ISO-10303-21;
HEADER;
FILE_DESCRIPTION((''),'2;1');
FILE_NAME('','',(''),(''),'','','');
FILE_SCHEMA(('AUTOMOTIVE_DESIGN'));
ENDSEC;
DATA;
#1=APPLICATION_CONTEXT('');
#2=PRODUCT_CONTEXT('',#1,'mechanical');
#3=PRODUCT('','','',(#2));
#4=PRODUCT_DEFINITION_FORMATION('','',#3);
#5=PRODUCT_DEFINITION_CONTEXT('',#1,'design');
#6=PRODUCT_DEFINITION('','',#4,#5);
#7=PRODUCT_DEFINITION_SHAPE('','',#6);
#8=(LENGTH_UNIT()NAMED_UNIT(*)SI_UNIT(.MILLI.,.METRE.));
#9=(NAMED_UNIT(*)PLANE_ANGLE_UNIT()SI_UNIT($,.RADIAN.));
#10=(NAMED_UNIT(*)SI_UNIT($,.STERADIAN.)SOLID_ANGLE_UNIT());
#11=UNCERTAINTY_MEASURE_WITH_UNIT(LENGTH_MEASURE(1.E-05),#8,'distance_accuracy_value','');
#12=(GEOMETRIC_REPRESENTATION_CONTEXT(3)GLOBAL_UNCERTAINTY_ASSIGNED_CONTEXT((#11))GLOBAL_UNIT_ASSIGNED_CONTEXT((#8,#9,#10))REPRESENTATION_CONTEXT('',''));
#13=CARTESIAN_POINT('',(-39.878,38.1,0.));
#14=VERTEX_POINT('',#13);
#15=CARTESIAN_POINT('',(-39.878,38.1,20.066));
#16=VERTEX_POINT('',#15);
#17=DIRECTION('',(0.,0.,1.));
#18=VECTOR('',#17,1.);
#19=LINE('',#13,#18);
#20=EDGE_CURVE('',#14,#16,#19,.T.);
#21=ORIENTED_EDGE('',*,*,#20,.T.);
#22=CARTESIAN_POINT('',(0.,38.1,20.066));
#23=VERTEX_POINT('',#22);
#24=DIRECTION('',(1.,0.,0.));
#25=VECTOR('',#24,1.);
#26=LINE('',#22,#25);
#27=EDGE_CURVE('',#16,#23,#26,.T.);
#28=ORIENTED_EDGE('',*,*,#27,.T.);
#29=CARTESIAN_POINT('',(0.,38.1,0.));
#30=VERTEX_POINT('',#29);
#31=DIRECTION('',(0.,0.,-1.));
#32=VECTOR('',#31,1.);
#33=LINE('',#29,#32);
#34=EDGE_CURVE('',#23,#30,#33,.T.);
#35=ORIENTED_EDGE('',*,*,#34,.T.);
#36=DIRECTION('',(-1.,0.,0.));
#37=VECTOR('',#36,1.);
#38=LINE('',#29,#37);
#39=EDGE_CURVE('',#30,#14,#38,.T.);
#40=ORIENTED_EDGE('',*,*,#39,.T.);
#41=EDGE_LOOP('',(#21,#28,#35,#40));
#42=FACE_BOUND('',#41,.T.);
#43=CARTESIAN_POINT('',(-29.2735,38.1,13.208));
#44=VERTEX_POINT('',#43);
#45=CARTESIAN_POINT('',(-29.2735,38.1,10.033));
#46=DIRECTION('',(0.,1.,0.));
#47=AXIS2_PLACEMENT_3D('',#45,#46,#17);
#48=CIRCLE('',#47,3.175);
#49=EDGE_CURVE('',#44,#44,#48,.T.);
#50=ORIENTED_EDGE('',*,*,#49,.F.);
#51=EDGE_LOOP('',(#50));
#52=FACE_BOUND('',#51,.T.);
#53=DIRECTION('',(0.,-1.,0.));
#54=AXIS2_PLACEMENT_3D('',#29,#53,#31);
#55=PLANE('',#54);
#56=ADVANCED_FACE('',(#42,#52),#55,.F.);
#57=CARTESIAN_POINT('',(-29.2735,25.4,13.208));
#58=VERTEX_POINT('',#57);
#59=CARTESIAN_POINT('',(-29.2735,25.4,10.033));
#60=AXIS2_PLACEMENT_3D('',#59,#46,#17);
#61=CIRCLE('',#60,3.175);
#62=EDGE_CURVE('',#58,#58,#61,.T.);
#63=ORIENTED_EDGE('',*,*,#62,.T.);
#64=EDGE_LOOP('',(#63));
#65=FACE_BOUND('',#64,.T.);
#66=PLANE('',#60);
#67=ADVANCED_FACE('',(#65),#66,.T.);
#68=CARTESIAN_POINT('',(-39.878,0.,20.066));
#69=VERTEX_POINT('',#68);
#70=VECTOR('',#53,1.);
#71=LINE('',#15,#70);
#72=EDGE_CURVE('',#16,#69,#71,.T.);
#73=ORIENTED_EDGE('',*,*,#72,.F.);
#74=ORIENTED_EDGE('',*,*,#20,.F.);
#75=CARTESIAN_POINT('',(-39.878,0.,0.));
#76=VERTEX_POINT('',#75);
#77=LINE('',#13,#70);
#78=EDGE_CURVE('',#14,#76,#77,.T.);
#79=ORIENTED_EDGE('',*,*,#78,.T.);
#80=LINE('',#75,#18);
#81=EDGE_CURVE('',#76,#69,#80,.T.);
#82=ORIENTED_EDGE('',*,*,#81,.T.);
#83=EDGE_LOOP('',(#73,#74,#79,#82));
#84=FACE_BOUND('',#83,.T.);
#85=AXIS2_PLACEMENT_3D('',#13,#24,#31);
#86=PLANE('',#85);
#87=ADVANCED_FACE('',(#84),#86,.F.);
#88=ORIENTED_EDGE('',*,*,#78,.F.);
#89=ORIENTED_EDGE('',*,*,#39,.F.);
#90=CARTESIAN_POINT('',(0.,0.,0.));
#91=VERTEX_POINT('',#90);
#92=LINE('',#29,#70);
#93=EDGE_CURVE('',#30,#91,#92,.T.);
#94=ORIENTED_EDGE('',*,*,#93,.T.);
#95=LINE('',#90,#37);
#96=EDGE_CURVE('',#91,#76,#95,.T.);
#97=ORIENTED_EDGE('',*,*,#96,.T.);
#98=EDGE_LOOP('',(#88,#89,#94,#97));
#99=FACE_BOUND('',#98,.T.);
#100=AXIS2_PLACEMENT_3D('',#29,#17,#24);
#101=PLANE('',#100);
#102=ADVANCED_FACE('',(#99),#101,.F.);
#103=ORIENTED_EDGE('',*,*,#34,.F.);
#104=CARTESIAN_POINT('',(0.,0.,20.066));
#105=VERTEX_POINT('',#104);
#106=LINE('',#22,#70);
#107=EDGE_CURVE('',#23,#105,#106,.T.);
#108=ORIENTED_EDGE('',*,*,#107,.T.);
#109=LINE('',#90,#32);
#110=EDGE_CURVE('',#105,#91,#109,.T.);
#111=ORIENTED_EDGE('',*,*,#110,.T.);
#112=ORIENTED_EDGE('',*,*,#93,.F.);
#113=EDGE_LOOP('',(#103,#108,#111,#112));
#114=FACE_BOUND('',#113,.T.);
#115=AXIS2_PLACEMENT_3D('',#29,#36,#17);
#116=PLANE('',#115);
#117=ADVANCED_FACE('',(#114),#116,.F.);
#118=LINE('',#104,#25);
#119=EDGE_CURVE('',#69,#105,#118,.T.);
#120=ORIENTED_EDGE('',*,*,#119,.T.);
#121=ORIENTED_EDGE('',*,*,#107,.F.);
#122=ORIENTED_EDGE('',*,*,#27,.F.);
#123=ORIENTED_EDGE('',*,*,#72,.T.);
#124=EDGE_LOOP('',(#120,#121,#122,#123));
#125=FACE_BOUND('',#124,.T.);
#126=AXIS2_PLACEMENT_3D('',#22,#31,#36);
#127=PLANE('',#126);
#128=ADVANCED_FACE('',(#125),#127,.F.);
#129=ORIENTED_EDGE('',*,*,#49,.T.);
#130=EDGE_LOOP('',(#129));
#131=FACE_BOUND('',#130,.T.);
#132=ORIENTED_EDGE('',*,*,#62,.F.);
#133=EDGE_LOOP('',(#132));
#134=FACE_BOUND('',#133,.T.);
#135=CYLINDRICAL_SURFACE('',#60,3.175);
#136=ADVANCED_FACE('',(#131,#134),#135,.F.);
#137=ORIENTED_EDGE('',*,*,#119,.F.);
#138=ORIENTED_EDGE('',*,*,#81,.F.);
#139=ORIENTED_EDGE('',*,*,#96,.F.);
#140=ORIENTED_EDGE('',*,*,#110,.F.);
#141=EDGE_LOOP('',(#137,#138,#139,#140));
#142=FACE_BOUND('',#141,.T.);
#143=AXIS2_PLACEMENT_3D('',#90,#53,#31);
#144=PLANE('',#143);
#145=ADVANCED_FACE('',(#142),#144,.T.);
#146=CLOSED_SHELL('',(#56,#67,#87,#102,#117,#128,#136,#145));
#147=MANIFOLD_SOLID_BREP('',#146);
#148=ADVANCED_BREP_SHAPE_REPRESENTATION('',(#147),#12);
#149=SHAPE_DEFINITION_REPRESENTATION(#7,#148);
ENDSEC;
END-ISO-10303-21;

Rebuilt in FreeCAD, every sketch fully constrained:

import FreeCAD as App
import Part
import Sketcher
from FreeCAD import Vector
Q = App.Units.Quantity

doc = App.newDocument("Part")
params = doc.addObject("Spreadsheet::Sheet", "Params")
for row, (alias, value) in enumerate([
    ("sketch1_width", "1.57 in"),
    ("sketch1_height", "0.79 in"),
    ("pad1_length", "1.5 in"),
    ("sketch2_diameter", "0.25 in"),
    ("pocket1_length", "0.5 in"),
], start=1):
    params.set(f"A{row}", alias)
    params.set(f"B{row}", "=" + value)
    params.setAlias(f"B{row}", alias)

body = doc.addObject("PartDesign::Body", "Body")

# Sketch on XZ plane
sketch1 = body.newObject("Sketcher::SketchObject", "Sketch")
sketch1.AttachmentSupport = (doc.getObject("XZ_Plane"), [""])
sketch1.MapMode = "FlatFace"
sketch1.addGeometry(Part.LineSegment(Vector(-39.878, 0, 0), Vector(-39.878, 20.066, 0)), False)
sketch1.addGeometry(Part.LineSegment(Vector(-39.878, 20.066, 0), Vector(0, 20.066, 0)), False)
sketch1.addGeometry(Part.LineSegment(Vector(0, 20.066, 0), Vector(0, 0, 0)), False)
sketch1.addGeometry(Part.LineSegment(Vector(0, 0, 0), Vector(-39.878, 0, 0)), False)
sketch1.addConstraint(Sketcher.Constraint("Coincident", 0, 2, 1, 1))
sketch1.addConstraint(Sketcher.Constraint("Coincident", 1, 2, 2, 1))
sketch1.addConstraint(Sketcher.Constraint("Coincident", 2, 2, 3, 1))
sketch1.addConstraint(Sketcher.Constraint("Coincident", 3, 2, 0, 1))
sketch1.addConstraint(Sketcher.Constraint("Vertical", 0))
sketch1.addConstraint(Sketcher.Constraint("Horizontal", 1))
sketch1.addConstraint(Sketcher.Constraint("Vertical", 2))
sketch1.addConstraint(Sketcher.Constraint("Horizontal", 3))
sketch1.addConstraint(Sketcher.Constraint("Coincident", 2, 2, -1, 1))
sketch1.addConstraint(Sketcher.Constraint("DistanceX", 1, 1, 1, 2, Q("1.57 in")))
sketch1.addConstraint(Sketcher.Constraint("DistanceY", 0, 1, 0, 2, Q("0.79 in")))
sketch1.setExpression("Constraints[9]", "Params.sketch1_width")
sketch1.setExpression("Constraints[10]", "Params.sketch1_height")
pad1 = body.newObject("PartDesign::Pad", "Pad")
pad1.Profile = sketch1
pad1.setExpression("Length", "Params.pad1_length")
pad1.Reversed = True

# Sketch on XZ plane
sketch2 = body.newObject("Sketcher::SketchObject", "Sketch001")
sketch2.AttachmentSupport = (doc.getObject("XZ_Plane"), [""])
sketch2.MapMode = "FlatFace"
sketch2.AttachmentOffset = App.Placement(Vector(0, 0, -1.5 * 25.4), App.Rotation())
sketch2.addGeometry(Part.Circle(Vector(-29.2735, 10.033, 0), Vector(0, 0, 1), 3.175), False)
sketch2.addConstraint(Sketcher.Constraint("Diameter", 0, Q("0.25 in")))
sketch2.addConstraint(Sketcher.Constraint("DistanceY", -1, 1, 0, 3, Q("0.395 in")))
sketch2.addConstraint(Sketcher.Constraint("DistanceX", 0, 3, -1, 1, Q("1.1525 in")))
sketch2.setExpression("Constraints[0]", "Params.sketch2_diameter")
pocket1 = body.newObject("PartDesign::Pocket", "Pocket")
pocket1.Profile = sketch2
pocket1.setExpression("Length", "Params.pocket1_length")
pocket1.Reversed = True

doc.recompute()
